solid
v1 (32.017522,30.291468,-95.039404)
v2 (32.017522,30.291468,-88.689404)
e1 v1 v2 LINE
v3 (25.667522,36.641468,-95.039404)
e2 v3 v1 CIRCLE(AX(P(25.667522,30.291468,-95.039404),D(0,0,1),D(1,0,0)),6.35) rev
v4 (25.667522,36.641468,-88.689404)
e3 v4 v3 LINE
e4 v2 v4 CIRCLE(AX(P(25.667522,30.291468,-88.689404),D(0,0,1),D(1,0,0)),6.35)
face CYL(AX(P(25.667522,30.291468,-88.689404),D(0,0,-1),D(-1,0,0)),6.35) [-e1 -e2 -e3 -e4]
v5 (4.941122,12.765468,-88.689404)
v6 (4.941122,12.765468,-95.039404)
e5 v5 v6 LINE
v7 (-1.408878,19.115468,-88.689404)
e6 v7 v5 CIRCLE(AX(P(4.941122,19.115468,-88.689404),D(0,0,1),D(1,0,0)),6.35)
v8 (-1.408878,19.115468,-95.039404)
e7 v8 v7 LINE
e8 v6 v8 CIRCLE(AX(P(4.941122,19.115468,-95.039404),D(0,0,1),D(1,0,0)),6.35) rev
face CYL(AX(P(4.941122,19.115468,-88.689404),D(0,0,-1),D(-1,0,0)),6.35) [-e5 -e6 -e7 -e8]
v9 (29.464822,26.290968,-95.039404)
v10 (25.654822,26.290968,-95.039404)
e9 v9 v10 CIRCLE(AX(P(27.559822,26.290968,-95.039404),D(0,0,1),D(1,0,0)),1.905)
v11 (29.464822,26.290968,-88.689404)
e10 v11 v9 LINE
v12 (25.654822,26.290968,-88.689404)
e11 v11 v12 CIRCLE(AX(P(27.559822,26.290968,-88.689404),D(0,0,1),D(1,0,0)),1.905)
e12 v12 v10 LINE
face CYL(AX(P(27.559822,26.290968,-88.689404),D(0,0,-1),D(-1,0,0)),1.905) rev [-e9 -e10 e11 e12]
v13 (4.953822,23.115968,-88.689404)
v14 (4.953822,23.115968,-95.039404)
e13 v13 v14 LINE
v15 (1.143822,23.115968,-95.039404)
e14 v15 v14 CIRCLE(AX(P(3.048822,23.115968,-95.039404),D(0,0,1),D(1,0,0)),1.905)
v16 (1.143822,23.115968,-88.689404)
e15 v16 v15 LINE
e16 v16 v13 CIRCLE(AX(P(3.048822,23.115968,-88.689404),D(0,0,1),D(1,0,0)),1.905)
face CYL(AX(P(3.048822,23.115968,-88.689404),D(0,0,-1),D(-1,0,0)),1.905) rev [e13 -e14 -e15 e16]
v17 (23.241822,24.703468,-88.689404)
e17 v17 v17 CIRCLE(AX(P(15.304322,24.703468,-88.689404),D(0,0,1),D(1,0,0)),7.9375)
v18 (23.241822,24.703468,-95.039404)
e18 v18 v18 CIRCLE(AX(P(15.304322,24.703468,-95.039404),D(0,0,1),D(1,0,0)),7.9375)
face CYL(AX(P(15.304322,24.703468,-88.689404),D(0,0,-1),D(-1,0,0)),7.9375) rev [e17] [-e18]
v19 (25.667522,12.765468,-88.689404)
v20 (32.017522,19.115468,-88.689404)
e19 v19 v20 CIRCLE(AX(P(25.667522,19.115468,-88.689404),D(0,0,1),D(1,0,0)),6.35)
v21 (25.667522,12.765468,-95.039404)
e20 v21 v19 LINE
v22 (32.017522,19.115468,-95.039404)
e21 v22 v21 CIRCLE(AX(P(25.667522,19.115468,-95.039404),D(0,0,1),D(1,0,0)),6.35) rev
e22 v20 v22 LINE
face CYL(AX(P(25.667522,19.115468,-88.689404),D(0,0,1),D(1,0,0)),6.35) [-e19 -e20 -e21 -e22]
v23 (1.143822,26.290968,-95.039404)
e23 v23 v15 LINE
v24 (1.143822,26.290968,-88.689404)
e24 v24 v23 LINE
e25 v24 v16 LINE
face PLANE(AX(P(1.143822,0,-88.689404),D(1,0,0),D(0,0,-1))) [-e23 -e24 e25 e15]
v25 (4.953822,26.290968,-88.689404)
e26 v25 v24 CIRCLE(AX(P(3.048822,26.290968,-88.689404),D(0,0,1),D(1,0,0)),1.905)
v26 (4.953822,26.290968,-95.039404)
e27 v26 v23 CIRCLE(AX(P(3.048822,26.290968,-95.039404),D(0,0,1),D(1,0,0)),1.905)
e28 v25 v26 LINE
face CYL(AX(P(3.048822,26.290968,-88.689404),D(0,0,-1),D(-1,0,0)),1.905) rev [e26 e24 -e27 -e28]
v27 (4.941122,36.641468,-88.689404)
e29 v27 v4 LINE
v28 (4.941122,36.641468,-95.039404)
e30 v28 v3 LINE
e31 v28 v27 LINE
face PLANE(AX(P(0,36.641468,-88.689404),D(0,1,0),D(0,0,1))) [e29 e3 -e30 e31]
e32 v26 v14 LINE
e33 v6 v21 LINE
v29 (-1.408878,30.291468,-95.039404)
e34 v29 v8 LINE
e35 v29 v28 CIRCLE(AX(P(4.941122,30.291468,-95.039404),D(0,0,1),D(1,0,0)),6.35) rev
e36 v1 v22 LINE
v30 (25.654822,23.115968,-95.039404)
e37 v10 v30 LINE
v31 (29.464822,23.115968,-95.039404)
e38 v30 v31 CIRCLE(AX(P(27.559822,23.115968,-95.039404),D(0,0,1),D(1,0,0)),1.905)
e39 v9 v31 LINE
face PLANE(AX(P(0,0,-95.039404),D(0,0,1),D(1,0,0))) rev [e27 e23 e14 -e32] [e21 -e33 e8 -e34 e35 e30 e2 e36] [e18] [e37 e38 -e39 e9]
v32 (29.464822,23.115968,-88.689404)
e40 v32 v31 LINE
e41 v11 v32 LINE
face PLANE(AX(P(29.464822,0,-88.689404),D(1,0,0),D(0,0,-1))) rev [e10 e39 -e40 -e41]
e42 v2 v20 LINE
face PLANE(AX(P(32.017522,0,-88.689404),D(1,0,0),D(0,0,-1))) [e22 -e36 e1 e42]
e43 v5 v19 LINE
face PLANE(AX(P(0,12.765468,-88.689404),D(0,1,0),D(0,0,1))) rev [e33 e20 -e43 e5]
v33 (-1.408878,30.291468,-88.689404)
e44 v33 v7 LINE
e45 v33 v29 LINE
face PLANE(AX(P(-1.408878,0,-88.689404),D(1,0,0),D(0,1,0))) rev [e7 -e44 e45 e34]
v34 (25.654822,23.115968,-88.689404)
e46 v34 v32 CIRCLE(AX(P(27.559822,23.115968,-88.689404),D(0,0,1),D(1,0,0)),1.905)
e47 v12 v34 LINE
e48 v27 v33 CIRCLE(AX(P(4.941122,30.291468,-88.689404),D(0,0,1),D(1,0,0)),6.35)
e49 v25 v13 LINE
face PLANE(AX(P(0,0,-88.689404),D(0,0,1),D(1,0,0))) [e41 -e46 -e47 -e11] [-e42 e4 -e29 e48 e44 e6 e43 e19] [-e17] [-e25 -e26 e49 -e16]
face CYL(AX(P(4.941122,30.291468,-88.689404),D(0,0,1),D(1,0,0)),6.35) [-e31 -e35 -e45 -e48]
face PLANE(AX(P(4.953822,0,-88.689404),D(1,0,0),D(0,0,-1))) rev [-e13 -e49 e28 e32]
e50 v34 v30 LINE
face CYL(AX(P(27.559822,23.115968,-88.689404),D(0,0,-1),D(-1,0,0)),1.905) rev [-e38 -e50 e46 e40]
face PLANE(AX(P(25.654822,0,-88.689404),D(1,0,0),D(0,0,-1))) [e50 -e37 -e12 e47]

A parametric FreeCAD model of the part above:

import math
import FreeCAD as App
import Part
import Sketcher
from FreeCAD import Vector
Q = App.Units.Quantity


def edges_at(feature, points):
    """Names of the edges that pass closest to the given points."""
    edges = feature.Shape.Edges
    near = lambda p: min(range(len(edges)), key=lambda i: edges[i].distToShape(Part.Vertex(*p))[0])
    return sorted({f"Edge{near(p) + 1}" for p in points})


def add_polygon(sketch, points):
    """Adds a closed chain of lines whose ends are joined by coincident constraints."""
    first, n = sketch.GeometryCount, len(points)
    for a, b in zip(points, points[1:] + points[:1]):
        sketch.addGeometry(Part.LineSegment(App.Vector(*a, 0), App.Vector(*b, 0)), False)
    for i in range(n):
        sketch.addConstraint(Sketcher.Constraint("Coincident", first + i, 2, first + (i + 1) % n, 1))

doc = App.newDocument("Part")
body = doc.addObject("PartDesign::Body", "Body")

# Sketch on XY plane
sketch1 = body.newObject("Sketcher::SketchObject", "Sketch")
sketch1.AttachmentSupport = (doc.getObject("XY_Plane"), [""])
sketch1.MapMode = "FlatFace"
sketch1.AttachmentOffset = App.Placement(Vector(0, 0, -95.039404), App.Rotation())
add_polygon(sketch1, [(-1.4, 12.8), (32, 12.8), (32, 36.6), (-1.4, 36.6)])  # lines 0-3
sketch1.addGeometry(Part.ArcOfCircle(Part.Circle(Vector(3, 23.1, 0), Vector(0, 0, 1), 1.9), math.radians(180), math.radians(360)), False)  # 4
sketch1.addGeometry(Part.LineSegment(Vector(1.1, 23.1, 0), Vector(1.1, 26.3, 0)), False)  # 5
sketch1.addGeometry(Part.ArcOfCircle(Part.Circle(Vector(3, 26.3, 0), Vector(0, 0, 1), 1.9), math.radians(0), math.radians(180)), False)  # 6
sketch1.addGeometry(Part.LineSegment(Vector(5, 26.3, 0), Vector(5, 23.1, 0)), False)  # 7
sketch1.addGeometry(Part.ArcOfCircle(Part.Circle(Vector(15.3, 24.7, 0), Vector(0, 0, 1), 7.9), math.radians(90), math.radians(270)), False)  # 8
sketch1.addGeometry(Part.ArcOfCircle(Part.Circle(Vector(15.3, 24.7, 0), Vector(0, 0, 1), 7.9), math.radians(0), math.radians(90)), False)  # 9
sketch1.addGeometry(Part.ArcOfCircle(Part.Circle(Vector(15.3, 24.7, 0), Vector(0, 0, 1), 7.9), math.radians(-90), math.radians(0)), False)  # 10
sketch1.addGeometry(Part.ArcOfCircle(Part.Circle(Vector(27.6, 26.3, 0), Vector(0, 0, 1), 1.9), math.radians(0), math.radians(180)), False)  # 11
sketch1.addGeometry(Part.LineSegment(Vector(29.5, 26.3, 0), Vector(29.5, 23.1, 0)), False)  # 12
sketch1.addGeometry(Part.ArcOfCircle(Part.Circle(Vector(27.6, 23.1, 0), Vector(0, 0, 1), 1.9), math.radians(180), math.radians(360)), False)  # 13
sketch1.addGeometry(Part.LineSegment(Vector(25.7, 23.1, 0), Vector(25.7, 26.3, 0)), False)  # 14
sketch1.addConstraint(Sketcher.Constraint("Tangent", 4, 1, 5, 1))
sketch1.addConstraint(Sketcher.Constraint("Tangent", 5, 2, 6, 2))
sketch1.addConstraint(Sketcher.Constraint("Tangent", 6, 1, 7, 1))
sketch1.addConstraint(Sketcher.Constraint("Tangent", 7, 2, 4, 2))
sketch1.addConstraint(Sketcher.Constraint("Tangent", 8, 1, 9, 2))
sketch1.addConstraint(Sketcher.Constraint("Tangent", 9, 1, 10, 2))
sketch1.addConstraint(Sketcher.Constraint("Tangent", 10, 1, 8, 2))
sketch1.addConstraint(Sketcher.Constraint("Tangent", 11, 1, 12, 1))
sketch1.addConstraint(Sketcher.Constraint("Tangent", 12, 2, 13, 2))
sketch1.addConstraint(Sketcher.Constraint("Tangent", 13, 1, 14, 1))
sketch1.addConstraint(Sketcher.Constraint("Tangent", 14, 2, 11, 2))
sketch1.addConstraint(Sketcher.Constraint("Horizontal", 0))
sketch1.addConstraint(Sketcher.Constraint("Vertical", 1))
sketch1.addConstraint(Sketcher.Constraint("Horizontal", 2))
sketch1.addConstraint(Sketcher.Constraint("Vertical", 3))
sketch1.addConstraint(Sketcher.Constraint("Vertical", 5))
sketch1.addConstraint(Sketcher.Constraint("Vertical", 7))
sketch1.addConstraint(Sketcher.Constraint("Vertical", 12))
sketch1.addConstraint(Sketcher.Constraint("Vertical", 14))
sketch1.addConstraint(Sketcher.Constraint("Equal", 6, 11))
sketch1.addConstraint(Sketcher.Constraint("Horizontal", 6, 3, 11, 3))
sketch1.addConstraint(Sketcher.Constraint("Horizontal", 4, 3, 13, 3))
sketch1.addConstraint(Sketcher.Constraint("Horizontal", 10, 3, 9, 1))
sketch1.addConstraint(Sketcher.Constraint("Vertical", 10, 3, 8, 1))
sketch1.addConstraint(Sketcher.Constraint("Vertical", 8, 1, 10, 1))
sketch1.addConstraint(Sketcher.Constraint("Radius", 4, Q("0.075 in")))
sketch1.addConstraint(Sketcher.Constraint("Radius", 8, Q("0.3125 in")))
sketch1.addConstraint(Sketcher.Constraint("DistanceY", 1, 1, 1, 2, Q("0.94 in")))
sketch1.addConstraint(Sketcher.Constraint("DistanceX", 0, 1, 0, 2, Q("1.316 in")))
sketch1.addConstraint(Sketcher.Constraint("DistanceY", 5, 1, 5, 2, Q("0.125 in")))
sketch1.addConstraint(Sketcher.Constraint("DistanceY", 0, 2, 10, 3, Q("0.47 in")))
sketch1.addConstraint(Sketcher.Constraint("DistanceY", 6, 1, 8, 1, Q("0.25 in")))
sketch1.addConstraint(Sketcher.Constraint("DistanceX", 9, 1, 13, 3, Q("0.17 in")))
sketch1.addConstraint(Sketcher.Constraint("DistanceX", 6, 3, 11, 3, Q("0.965 in")))
sketch1.addConstraint(Sketcher.Constraint("DistanceX", 10, 3, 0, 2, Q("0.658 in")))
sketch1.addConstraint(Sketcher.Constraint("DistanceX", -1, 1, 4, 3, Q("3.048822 mm")))
sketch1.addConstraint(Sketcher.Constraint("DistanceY", -1, 1, 4, 3, Q("23.115968 mm")))
pad1 = body.newObject("PartDesign::Pad", "Pad")
pad1.Profile = sketch1
pad1.Length = Q("0.25 in")
doc.recompute()

fillet = body.newObject("PartDesign::Fillet", "Fillet")
fillet.Base = (pad1, edges_at(pad1, [
    (32.018, 12.765, -91.864),
    (-1.409, 12.765, -91.864),
    (-1.409, 36.641, -91.864),
    (32.018, 36.641, -91.864),
]))
fillet.Radius = Q("0.25 in")

doc.recompute()
